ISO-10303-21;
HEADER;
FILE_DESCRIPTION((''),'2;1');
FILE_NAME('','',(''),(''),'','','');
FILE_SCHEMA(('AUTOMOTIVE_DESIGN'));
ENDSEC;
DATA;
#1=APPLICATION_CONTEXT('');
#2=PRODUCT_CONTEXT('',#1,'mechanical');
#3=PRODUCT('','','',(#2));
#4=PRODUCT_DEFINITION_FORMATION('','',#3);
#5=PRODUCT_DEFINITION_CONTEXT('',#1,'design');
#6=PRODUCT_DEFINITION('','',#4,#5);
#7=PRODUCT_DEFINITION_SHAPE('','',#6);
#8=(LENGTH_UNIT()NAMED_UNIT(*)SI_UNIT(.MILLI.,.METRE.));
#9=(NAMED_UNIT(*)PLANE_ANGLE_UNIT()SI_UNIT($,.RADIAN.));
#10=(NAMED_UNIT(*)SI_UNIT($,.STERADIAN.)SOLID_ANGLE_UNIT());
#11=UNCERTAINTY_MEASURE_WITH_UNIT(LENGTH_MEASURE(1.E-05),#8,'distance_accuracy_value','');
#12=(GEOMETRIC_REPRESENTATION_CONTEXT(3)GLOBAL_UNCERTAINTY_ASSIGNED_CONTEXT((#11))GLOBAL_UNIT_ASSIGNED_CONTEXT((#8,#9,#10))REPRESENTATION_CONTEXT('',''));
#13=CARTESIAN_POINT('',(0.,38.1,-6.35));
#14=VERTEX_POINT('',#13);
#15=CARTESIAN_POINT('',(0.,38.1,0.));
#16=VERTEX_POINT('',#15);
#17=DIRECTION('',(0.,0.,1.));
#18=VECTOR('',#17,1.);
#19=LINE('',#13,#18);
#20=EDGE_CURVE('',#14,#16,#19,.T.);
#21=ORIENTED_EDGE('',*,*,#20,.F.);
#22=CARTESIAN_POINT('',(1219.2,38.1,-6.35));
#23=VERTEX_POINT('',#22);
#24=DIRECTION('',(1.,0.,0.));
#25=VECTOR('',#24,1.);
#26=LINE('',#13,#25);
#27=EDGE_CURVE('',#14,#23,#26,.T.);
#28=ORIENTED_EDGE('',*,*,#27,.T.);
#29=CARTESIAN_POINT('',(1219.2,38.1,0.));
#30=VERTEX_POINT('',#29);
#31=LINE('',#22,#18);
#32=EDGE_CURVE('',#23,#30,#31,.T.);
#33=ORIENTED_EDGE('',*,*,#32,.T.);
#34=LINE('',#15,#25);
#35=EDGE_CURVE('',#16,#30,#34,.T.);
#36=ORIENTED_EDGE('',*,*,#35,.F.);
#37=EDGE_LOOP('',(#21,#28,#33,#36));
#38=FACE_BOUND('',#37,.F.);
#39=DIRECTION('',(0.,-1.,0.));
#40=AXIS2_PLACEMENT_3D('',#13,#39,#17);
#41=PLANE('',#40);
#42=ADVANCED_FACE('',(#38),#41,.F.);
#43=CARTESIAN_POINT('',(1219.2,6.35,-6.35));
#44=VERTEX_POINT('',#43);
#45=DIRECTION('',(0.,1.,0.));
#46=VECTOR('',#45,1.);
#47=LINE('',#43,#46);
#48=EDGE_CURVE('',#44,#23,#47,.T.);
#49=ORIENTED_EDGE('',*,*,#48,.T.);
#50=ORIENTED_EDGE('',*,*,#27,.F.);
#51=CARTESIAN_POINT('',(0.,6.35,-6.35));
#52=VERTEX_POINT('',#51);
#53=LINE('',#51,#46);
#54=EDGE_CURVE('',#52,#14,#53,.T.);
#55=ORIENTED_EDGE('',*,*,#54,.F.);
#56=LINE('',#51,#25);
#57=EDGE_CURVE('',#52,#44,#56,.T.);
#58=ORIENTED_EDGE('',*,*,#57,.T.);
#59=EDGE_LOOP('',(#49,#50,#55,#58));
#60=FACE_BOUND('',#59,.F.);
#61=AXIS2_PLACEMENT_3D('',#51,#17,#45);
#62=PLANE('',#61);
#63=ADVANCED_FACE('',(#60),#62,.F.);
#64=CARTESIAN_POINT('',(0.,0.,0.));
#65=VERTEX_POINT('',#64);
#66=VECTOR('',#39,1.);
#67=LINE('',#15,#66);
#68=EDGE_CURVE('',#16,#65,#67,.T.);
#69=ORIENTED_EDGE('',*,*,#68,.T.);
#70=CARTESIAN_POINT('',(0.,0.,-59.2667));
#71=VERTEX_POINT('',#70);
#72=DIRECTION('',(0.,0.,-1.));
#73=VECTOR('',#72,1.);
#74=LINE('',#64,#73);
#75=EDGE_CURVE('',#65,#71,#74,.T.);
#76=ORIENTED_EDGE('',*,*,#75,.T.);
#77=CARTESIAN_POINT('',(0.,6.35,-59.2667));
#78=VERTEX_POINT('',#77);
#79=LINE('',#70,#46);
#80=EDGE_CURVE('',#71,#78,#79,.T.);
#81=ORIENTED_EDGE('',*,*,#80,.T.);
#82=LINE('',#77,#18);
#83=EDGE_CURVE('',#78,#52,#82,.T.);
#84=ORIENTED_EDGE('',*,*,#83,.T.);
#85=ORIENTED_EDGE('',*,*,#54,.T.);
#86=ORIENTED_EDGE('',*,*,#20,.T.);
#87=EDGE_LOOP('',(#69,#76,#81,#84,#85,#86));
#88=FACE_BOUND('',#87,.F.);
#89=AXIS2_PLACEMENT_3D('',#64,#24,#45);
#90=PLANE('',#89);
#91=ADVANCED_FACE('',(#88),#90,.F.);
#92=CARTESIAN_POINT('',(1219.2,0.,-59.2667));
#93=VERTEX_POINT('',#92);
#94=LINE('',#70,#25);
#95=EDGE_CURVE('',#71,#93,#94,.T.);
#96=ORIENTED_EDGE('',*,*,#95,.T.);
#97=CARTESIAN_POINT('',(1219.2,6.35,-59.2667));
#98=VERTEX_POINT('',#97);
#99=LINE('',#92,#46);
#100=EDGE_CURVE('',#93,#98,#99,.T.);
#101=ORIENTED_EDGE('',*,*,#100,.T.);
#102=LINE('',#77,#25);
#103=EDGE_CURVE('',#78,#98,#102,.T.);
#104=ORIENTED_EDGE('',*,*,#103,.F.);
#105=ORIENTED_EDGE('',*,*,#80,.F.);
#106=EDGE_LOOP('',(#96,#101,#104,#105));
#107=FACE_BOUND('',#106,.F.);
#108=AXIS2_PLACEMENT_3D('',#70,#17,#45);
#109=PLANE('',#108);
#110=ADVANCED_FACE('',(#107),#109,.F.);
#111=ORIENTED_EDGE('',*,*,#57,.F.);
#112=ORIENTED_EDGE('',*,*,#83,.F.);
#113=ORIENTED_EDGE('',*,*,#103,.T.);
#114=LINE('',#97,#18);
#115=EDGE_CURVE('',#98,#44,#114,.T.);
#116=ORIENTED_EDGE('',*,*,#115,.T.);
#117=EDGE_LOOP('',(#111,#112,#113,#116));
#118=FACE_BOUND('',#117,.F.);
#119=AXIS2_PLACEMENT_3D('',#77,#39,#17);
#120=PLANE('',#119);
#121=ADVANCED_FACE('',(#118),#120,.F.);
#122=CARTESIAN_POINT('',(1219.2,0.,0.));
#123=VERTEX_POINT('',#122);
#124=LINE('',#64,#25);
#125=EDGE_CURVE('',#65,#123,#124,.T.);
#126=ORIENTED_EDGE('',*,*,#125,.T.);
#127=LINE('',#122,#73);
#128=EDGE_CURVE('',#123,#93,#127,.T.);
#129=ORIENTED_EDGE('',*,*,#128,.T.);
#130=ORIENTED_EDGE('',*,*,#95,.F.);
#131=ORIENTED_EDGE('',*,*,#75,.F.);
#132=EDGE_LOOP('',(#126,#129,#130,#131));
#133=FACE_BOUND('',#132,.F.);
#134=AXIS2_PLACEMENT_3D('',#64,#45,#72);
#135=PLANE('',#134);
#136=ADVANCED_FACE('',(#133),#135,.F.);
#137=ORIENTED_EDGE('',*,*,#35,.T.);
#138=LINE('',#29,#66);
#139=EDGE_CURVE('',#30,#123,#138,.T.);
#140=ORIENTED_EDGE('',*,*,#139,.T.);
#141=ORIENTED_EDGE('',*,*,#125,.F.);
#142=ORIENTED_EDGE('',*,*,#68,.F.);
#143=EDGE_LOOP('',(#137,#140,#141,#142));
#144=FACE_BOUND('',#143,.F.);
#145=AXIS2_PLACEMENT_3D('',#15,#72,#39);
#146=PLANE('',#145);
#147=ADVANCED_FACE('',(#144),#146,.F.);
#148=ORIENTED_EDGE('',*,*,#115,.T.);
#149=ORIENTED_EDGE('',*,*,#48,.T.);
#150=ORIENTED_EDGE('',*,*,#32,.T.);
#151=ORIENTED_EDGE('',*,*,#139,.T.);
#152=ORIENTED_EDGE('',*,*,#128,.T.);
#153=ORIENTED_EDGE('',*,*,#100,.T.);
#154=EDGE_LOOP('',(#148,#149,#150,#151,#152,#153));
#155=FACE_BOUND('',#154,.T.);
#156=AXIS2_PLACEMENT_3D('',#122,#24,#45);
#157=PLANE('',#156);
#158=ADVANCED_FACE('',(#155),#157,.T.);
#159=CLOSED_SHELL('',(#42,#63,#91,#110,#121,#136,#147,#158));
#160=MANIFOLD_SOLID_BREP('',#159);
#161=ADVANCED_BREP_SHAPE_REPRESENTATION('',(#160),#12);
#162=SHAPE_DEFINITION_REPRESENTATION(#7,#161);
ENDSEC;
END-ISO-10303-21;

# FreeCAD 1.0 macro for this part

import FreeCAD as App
import Part
import Sketcher
Q = App.Units.Quantity


def add_polygon(sketch, points):
    """Adds a closed chain of lines whose ends are joined by coincident constraints."""
    first, n = sketch.GeometryCount, len(points)
    for a, b in zip(points, points[1:] + points[:1]):
        sketch.addGeometry(Part.LineSegment(App.Vector(*a, 0), App.Vector(*b, 0)), False)
    for i in range(n):
        sketch.addConstraint(Sketcher.Constraint("Coincident", first + i, 2, first + (i + 1) % n, 1))

doc = App.newDocument("Part")
body = doc.addObject("PartDesign::Body", "Body")

# Sketch on YZ plane
sketch1 = body.newObject("Sketcher::SketchObject", "Sketch")
sketch1.AttachmentSupport = (doc.getObject("YZ_Plane"), [""])
sketch1.MapMode = "FlatFace"
add_polygon(sketch1, [(38.1, 0), (0, 0), (0, -59.2667), (6.35, -59.2667), (6.35, -6.35), (38.1, -6.35)])  # lines 0-5
sketch1.addConstraint([
    Sketcher.Constraint("Horizontal", 0),
    Sketcher.Constraint("Vertical", 1),
    Sketcher.Constraint("Horizontal", 2),
    Sketcher.Constraint("Vertical", 3),
    Sketcher.Constraint("Horizontal", 4),
    Sketcher.Constraint("Vertical", 5),
    Sketcher.Constraint("Coincident", 0, 2, -1, 1),
    Sketcher.Constraint("Equal", 2, 5),
    Sketcher.Constraint("DistanceX", 0, 2, 0, 1, Q("1.5 in")),
    Sketcher.Constraint("DistanceX", 2, 1, 2, 2, Q("0.25 in")),
    Sketcher.Constraint("DistanceY", 1, 2, 1, 1, Q("59.2667 mm")),
])
pad1 = body.newObject("PartDesign::Pad", "Pad")
pad1.Profile = sketch1
pad1.Length = Q("48 in")

doc.recompute()
